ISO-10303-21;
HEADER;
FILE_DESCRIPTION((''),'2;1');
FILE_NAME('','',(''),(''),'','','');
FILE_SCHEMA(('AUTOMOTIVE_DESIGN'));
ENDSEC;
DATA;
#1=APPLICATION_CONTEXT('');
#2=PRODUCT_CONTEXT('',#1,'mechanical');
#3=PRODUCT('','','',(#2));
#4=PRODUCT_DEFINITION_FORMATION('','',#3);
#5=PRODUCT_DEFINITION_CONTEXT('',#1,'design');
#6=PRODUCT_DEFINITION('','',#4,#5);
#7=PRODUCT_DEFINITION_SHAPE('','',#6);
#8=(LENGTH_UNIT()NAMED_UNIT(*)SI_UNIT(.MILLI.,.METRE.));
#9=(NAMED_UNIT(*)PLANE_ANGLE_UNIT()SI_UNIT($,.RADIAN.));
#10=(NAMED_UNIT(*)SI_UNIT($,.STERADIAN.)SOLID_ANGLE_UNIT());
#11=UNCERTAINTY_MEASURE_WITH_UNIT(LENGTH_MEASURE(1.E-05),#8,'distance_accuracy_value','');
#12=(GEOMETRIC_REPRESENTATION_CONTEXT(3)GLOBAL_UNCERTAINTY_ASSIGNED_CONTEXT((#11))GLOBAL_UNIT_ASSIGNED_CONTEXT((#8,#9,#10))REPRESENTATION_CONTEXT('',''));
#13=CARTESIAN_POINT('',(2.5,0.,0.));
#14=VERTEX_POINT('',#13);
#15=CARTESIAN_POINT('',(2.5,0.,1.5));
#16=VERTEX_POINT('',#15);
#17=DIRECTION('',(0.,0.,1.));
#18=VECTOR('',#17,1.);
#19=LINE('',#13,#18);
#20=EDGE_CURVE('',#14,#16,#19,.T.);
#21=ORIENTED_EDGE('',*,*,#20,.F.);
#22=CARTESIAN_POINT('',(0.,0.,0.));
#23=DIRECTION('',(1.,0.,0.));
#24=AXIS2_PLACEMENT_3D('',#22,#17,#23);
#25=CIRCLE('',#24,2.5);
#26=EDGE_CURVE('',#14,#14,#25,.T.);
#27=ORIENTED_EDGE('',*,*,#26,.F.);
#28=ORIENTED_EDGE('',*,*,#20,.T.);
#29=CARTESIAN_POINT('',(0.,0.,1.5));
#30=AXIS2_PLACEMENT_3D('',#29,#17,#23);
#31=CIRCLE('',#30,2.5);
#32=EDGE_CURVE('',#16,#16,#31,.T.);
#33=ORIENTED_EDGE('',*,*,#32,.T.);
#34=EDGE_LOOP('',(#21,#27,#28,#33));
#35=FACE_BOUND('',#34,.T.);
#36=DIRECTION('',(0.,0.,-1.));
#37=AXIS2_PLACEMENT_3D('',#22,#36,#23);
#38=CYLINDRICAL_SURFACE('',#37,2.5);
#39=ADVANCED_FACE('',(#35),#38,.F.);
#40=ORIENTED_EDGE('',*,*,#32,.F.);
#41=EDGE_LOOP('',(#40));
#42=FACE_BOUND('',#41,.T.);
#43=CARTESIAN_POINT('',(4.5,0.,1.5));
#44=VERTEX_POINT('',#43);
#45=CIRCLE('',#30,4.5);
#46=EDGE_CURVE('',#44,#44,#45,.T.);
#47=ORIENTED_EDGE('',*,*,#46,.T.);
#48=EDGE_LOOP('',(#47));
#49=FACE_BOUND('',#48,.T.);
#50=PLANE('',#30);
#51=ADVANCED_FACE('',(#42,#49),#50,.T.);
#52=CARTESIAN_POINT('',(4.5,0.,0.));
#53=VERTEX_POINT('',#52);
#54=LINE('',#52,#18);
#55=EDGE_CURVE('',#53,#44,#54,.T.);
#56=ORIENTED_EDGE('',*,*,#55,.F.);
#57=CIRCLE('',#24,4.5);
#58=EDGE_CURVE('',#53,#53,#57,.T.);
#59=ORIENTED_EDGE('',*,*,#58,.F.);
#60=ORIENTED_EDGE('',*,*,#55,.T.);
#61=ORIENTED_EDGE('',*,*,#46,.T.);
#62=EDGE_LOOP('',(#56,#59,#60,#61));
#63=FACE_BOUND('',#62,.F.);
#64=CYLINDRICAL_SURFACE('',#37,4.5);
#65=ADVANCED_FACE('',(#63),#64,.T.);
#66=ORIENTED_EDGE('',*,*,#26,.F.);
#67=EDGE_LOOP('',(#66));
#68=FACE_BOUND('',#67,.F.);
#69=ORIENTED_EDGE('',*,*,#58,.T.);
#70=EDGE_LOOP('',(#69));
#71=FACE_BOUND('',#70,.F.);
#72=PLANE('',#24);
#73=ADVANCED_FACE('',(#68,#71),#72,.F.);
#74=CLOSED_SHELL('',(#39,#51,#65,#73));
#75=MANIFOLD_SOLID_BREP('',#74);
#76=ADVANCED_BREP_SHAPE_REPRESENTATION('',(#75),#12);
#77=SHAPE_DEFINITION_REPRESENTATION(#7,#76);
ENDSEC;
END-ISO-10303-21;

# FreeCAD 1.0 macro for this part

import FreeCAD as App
import Part
import Sketcher
from FreeCAD import Vector
Q = App.Units.Quantity

doc = App.newDocument("Part")
params = doc.addObject("Spreadsheet::Sheet", "Params")
for row, (alias, value) in enumerate([
    ("sketch1_diameter", "9 mm"),
    ("sketch1_diameter2", "5 mm"),
    ("pad1_length", "1.5 mm"),
], start=1):
    params.set(f"A{row}", alias)
    params.set(f"B{row}", "=" + value)
    params.setAlias(f"B{row}", alias)

body = doc.addObject("PartDesign::Body", "Body")

sketch1 = body.newObject("Sketcher::SketchObject", "Sketch")
sketch1.AttachmentSupport = (doc.getObject("XY_Plane"), [""])
sketch1.MapMode = "FlatFace"
sketch1.addGeometry(Part.Circle(Vector(0, 0, 0), Vector(0, 0, 1), 4.5), False)
sketch1.addGeometry(Part.Circle(Vector(0, 0, 0), Vector(0, 0, 1), 2.5), False)
sketch1.addConstraint(Sketcher.Constraint("Coincident", 0, 3, -1, 1))
sketch1.addConstraint(Sketcher.Constraint("Coincident", 1, 3, -1, 1))
sketch1.addConstraint(Sketcher.Constraint("Diameter", 0, Q("9 mm")))
sketch1.addConstraint(Sketcher.Constraint("Diameter", 1, Q("5 mm")))
sketch1.setExpression("Constraints[2]", "Params.sketch1_diameter")
sketch1.setExpression("Constraints[3]", "Params.sketch1_diameter2")
pad1 = body.newObject("PartDesign::Pad", "Pad")
pad1.Profile = sketch1
pad1.setExpression("Length", "Params.pad1_length")

doc.recompute()
